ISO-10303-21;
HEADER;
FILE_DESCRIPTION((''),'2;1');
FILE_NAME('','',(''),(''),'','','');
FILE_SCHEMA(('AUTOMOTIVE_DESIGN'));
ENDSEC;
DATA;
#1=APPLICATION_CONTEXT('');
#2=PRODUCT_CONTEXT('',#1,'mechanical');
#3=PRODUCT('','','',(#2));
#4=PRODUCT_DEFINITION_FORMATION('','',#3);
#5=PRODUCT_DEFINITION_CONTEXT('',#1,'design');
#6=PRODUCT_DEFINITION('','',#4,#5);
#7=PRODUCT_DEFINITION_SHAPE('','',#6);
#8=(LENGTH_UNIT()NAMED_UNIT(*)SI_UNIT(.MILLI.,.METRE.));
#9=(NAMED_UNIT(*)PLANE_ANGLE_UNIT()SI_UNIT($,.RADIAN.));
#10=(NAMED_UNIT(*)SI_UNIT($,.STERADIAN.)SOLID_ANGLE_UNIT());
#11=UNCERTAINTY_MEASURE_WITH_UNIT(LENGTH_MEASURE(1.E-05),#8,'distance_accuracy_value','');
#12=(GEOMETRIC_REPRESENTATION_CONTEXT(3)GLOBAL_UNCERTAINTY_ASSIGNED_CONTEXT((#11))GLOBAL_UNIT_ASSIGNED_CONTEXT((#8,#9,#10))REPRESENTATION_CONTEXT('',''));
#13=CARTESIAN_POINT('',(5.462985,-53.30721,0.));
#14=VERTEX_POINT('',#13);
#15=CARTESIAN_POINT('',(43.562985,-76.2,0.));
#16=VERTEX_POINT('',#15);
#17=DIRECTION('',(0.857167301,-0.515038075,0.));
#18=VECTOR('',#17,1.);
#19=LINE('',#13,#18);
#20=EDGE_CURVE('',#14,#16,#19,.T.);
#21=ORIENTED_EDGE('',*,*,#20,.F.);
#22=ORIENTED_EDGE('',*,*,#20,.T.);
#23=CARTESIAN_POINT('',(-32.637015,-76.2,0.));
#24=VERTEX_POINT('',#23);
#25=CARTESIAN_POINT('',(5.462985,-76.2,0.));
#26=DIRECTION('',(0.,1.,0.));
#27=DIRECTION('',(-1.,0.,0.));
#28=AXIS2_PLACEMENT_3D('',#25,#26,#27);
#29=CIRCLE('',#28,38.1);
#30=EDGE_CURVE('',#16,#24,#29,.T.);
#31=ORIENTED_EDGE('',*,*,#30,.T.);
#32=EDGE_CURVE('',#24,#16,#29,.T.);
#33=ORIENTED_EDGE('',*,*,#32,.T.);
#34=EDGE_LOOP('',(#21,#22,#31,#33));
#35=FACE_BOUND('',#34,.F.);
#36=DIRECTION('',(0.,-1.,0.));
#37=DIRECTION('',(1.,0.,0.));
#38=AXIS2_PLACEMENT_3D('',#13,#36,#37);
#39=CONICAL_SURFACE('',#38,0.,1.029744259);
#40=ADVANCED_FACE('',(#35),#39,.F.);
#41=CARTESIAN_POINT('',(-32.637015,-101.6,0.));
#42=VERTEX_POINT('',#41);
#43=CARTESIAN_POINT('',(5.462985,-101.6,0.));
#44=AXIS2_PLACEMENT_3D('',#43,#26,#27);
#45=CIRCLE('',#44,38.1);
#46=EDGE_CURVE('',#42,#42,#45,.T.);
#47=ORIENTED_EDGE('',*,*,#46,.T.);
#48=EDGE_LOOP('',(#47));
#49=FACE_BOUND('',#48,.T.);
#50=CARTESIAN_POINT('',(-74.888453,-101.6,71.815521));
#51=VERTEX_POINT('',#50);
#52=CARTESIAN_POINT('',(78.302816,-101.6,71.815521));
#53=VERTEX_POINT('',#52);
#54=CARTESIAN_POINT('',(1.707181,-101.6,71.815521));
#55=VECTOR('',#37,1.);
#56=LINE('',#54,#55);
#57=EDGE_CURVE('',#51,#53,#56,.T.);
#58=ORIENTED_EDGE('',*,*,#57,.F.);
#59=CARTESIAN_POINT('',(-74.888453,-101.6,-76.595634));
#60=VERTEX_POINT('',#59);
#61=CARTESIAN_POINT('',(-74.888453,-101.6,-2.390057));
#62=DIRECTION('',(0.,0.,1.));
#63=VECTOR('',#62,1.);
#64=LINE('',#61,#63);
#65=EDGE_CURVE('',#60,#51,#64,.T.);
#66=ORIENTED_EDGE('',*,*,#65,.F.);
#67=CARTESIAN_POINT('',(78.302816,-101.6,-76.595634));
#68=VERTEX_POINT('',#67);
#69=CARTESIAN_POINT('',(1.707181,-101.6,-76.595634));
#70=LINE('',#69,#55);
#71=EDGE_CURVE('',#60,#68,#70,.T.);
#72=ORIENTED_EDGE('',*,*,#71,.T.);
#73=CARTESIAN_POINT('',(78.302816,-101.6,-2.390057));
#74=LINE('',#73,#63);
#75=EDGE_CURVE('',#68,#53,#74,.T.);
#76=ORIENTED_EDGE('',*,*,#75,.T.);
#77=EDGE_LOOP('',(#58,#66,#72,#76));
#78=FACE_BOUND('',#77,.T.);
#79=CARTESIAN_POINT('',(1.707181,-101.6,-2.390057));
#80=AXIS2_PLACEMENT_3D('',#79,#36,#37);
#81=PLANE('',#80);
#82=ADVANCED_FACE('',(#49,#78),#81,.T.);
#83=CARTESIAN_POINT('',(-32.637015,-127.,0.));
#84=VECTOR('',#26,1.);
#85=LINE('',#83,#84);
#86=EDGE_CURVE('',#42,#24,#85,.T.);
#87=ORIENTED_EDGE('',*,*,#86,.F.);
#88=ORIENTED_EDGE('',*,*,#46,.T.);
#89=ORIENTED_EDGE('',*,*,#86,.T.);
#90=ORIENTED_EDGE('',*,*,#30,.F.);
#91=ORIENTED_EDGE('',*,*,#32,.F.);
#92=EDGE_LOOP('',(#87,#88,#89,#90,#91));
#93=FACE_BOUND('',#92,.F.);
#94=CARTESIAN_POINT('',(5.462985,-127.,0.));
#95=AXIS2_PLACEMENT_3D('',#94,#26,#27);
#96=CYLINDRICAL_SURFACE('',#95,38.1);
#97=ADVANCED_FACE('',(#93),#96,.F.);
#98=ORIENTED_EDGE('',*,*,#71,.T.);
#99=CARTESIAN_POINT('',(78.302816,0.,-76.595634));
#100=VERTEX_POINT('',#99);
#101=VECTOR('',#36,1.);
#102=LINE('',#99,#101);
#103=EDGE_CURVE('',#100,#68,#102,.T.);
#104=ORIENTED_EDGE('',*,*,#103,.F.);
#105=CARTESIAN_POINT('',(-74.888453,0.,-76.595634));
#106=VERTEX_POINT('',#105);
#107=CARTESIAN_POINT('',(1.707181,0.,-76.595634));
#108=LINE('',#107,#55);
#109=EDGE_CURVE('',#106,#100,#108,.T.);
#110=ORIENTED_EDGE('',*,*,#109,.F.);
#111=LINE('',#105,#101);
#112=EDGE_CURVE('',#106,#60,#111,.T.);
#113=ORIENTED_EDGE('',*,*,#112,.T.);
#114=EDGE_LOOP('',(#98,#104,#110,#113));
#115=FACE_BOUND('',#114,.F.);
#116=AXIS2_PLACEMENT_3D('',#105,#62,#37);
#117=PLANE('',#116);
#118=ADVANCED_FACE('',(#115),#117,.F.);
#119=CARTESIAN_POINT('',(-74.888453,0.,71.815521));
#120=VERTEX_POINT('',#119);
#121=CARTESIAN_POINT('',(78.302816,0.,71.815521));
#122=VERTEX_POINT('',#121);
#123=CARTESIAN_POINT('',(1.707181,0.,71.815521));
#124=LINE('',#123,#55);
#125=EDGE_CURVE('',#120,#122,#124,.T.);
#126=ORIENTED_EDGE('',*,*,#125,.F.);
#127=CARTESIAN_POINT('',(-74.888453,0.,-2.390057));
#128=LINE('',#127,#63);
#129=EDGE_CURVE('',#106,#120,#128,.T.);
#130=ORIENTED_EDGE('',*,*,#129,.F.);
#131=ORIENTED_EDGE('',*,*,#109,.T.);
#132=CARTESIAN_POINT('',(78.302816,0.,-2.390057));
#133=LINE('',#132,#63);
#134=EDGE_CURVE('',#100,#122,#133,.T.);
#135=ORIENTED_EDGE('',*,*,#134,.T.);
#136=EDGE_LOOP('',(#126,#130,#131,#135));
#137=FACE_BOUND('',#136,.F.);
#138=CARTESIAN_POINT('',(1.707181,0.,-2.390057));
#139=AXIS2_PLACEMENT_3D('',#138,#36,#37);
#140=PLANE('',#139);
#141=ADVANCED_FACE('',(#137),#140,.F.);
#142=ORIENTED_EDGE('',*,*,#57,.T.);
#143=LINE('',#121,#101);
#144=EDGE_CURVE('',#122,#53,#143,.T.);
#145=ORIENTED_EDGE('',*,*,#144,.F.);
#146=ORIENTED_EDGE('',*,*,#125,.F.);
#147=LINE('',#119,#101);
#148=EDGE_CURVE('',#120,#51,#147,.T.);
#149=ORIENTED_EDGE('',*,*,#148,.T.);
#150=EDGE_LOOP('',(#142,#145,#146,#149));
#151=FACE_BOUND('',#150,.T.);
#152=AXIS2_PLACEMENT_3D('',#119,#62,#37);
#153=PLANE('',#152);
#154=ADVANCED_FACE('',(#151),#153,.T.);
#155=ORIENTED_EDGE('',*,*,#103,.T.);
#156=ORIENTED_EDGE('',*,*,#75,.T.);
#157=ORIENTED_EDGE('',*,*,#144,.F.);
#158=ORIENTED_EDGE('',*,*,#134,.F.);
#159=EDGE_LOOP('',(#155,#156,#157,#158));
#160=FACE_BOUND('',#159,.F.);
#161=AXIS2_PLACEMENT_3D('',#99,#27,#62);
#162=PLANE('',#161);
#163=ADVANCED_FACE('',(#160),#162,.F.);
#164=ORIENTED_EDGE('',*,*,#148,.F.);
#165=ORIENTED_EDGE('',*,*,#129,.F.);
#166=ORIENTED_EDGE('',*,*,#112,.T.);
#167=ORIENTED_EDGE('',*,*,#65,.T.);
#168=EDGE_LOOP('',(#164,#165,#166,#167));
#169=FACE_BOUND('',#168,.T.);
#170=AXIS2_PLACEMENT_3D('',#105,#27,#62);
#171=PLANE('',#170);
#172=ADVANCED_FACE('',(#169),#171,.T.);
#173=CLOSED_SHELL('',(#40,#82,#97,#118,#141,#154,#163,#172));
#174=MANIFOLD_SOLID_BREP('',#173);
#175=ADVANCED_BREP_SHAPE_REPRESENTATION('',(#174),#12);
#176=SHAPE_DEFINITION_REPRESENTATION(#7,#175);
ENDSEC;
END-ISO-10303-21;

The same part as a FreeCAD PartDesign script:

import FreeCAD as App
import Part
import Sketcher
Q = App.Units.Quantity

doc = App.newDocument("Part")
body = doc.addObject("PartDesign::Body", "Body")

# Sketch on XZ plane
sketch1 = body.newObject("Sketcher::SketchObject", "Sketch")
sketch1.AttachmentSupport = (doc.getObject("XZ_Plane"), [""])
sketch1.MapMode = "FlatFace"
sketch1.addGeometry(Part.LineSegment(App.Vector(-74.888453, 71.815521, 0), App.Vector(-74.888453, -76.595634, 0)), False)
sketch1.addGeometry(Part.LineSegment(App.Vector(-74.888453, -76.595634, 0), App.Vector(78.302816, -76.595634, 0)), False)
sketch1.addGeometry(Part.LineSegment(App.Vector(78.302816, -76.595634, 0), App.Vector(78.302816, 71.815521, 0)), False)
sketch1.addGeometry(Part.LineSegment(App.Vector(78.302816, 71.815521, 0), App.Vector(-74.888453, 71.815521, 0)), False)
sketch1.addConstraint(Sketcher.Constraint("Coincident", 0, 2, 1, 1))
sketch1.addConstraint(Sketcher.Constraint("Coincident", 1, 2, 2, 1))
sketch1.addConstraint(Sketcher.Constraint("Coincident", 2, 2, 3, 1))
sketch1.addConstraint(Sketcher.Constraint("Coincident", 3, 2, 0, 1))
sketch1.addConstraint(Sketcher.Constraint("Vertical", 0))
sketch1.addConstraint(Sketcher.Constraint("Horizontal", 1))
sketch1.addConstraint(Sketcher.Constraint("Vertical", 2))
sketch1.addConstraint(Sketcher.Constraint("Horizontal", 3))
sketch1.addConstraint(Sketcher.Constraint("DistanceX", 1, 1, 1, 2, Q("153.191268 mm")))
sketch1.addConstraint(Sketcher.Constraint("DistanceY", 0, 2, 0, 1, Q("148.411155 mm")))
sketch1.addConstraint(Sketcher.Constraint("DistanceY", -1, 1, 2, 2, Q("71.815521 mm")))
sketch1.addConstraint(Sketcher.Constraint("DistanceX", 0, 2, -1, 1, Q("74.888453 mm")))
pad1 = body.newObject("PartDesign::Pad", "Pad")
pad1.Profile = sketch1
pad1.Length = Q("4 in")

# Sketch on XZ plane
sketch2 = body.newObject("Sketcher::SketchObject", "Sketch001")
sketch2.AttachmentSupport = (doc.getObject("XZ_Plane"), [""])
sketch2.MapMode = "FlatFace"
sketch2.AttachmentOffset = App.Placement(App.Vector(0, 0, 4 * 25.4), App.Rotation())
sketch2.addGeometry(Part.Circle(App.Vector(5.462985, 0, 0), App.Vector(0, 0, 1), 38.1), False)
sketch2.addConstraint(Sketcher.Constraint("PointOnObject", 0, 3, -1))
sketch2.addConstraint(Sketcher.Constraint("Diameter", 0, Q("3 in")))
sketch2.addConstraint(Sketcher.Constraint("DistanceX", -1, 1, 0, 3, Q("5.462985 mm")))
doc.recompute()
hole = body.newObject("PartDesign::Hole", "Hole")
hole.Profile = sketch2
hole.ThreadType = "None"
hole.Diameter = Q("3 in")
hole.DepthType = "Dimension"
hole.Depth = Q("1 in")
hole.DrillPoint = "Angled"
hole.DrillPointAngle = 118

doc.recompute()
